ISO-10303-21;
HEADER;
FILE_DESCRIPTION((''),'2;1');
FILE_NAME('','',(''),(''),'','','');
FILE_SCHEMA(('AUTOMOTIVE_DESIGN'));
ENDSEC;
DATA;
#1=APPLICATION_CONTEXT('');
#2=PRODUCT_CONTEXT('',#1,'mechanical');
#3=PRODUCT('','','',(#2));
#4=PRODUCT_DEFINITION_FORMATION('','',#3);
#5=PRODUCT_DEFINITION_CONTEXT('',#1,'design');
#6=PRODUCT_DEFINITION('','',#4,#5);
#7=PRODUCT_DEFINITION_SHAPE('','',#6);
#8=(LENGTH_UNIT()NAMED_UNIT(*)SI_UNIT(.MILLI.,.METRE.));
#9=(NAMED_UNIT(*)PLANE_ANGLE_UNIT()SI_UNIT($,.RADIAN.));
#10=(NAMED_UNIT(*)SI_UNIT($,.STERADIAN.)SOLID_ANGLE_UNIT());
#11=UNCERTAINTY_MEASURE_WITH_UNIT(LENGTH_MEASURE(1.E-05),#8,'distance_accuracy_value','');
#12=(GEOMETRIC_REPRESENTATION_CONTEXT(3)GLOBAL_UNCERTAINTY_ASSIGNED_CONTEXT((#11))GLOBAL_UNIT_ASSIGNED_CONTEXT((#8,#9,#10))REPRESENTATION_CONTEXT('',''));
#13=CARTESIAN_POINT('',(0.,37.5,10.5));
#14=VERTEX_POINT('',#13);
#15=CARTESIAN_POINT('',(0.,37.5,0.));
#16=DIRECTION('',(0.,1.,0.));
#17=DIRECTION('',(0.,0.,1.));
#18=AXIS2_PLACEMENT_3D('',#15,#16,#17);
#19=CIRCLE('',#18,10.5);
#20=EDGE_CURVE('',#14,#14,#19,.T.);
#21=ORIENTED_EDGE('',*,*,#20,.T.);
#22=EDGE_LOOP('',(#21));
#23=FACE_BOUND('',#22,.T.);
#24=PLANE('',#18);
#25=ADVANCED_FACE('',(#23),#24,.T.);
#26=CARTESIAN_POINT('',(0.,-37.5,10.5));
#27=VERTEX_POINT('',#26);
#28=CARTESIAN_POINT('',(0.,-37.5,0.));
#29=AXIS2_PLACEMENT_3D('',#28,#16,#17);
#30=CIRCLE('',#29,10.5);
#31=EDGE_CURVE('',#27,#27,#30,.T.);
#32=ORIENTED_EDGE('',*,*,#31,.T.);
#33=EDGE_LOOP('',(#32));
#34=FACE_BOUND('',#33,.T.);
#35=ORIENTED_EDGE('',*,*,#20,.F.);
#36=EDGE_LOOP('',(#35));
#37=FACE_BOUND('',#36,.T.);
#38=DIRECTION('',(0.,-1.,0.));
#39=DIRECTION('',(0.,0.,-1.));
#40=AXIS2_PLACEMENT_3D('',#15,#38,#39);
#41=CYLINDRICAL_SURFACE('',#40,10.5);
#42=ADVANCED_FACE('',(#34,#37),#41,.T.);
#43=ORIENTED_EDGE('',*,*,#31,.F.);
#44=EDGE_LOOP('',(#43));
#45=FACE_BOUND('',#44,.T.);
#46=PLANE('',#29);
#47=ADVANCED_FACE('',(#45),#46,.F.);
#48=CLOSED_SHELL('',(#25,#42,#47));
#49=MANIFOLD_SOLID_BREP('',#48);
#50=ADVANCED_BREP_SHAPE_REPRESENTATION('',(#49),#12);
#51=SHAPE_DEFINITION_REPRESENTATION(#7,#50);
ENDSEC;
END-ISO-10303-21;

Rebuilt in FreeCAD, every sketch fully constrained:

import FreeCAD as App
import Part
import Sketcher
from FreeCAD import Vector
Q = App.Units.Quantity

doc = App.newDocument("Part")
body = doc.addObject("PartDesign::Body", "Body")

sketch1 = body.newObject("Sketcher::SketchObject", "Sketch")
sketch1.AttachmentSupport = (doc.getObject("XZ_Plane"), [""])
sketch1.MapMode = "FlatFace"
sketch1.addGeometry(Part.Circle(Vector(0, 0, 0), Vector(0, 0, 1), 10.5), False)
sketch1.addConstraint([
    Sketcher.Constraint("Coincident", 0, 3, -1, 1),
    Sketcher.Constraint("Diameter", 0, Q("21 mm")),
])
pad1 = body.newObject("PartDesign::Pad", "Pad")
pad1.Profile = sketch1
pad1.Length = 75
pad1.Midplane = True

doc.recompute()
